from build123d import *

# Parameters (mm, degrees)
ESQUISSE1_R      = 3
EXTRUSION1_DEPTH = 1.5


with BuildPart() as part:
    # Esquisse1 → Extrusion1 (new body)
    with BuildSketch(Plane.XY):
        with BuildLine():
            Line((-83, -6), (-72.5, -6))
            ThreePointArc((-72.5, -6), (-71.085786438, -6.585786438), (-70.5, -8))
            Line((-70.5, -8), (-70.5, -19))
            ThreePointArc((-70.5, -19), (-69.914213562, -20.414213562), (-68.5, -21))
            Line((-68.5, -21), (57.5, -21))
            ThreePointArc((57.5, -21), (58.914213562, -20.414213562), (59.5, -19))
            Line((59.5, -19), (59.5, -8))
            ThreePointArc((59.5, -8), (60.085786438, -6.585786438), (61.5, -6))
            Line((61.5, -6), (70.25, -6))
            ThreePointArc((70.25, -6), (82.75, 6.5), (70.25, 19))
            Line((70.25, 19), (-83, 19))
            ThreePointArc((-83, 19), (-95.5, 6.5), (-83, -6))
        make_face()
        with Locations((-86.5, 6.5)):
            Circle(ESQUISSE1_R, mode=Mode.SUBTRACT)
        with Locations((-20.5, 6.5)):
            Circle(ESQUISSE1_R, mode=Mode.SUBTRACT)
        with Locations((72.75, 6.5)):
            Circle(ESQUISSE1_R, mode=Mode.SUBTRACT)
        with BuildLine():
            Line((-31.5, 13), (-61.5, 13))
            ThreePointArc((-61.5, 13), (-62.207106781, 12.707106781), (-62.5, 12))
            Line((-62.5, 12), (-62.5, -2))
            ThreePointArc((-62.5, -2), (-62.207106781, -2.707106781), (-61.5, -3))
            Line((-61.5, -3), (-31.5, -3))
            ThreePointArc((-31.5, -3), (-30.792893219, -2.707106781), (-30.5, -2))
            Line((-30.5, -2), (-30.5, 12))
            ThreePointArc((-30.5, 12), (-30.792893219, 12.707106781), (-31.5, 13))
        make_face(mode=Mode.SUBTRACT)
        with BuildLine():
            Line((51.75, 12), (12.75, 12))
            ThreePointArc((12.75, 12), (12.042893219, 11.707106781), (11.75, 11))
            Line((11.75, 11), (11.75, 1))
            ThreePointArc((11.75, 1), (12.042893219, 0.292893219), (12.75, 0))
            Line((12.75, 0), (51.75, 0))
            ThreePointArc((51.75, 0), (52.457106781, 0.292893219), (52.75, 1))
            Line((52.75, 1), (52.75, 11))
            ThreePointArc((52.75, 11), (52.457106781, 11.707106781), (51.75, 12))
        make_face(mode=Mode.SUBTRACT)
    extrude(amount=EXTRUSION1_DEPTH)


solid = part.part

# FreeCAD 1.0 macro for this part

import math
import FreeCAD as App
import Part
import Sketcher

V = App.Vector
Q = App.Units.Quantity

doc = App.newDocument("Part")
params = doc.addObject("Spreadsheet::Sheet", "Params")
for row, (alias, value) in enumerate([
    ("sketch1_diameter", "6 mm"),
    ("sketch1_radius", "2 mm"),
    ("sketch1_radius2", "1 mm"),
    ("sketch1_radius3", "12.5 mm"),
    ("sketch1_width", "126 mm"),
    ("pad1_length", "1.5 mm"),
], start=1):
    params.set(f"A{row}", alias)
    params.set(f"B{row}", "=" + value)
    params.setAlias(f"B{row}", alias)

body = doc.addObject("PartDesign::Body", "Body")

# Sketch on XY plane
sketch1 = body.newObject("Sketcher::SketchObject", "Sketch")
sketch1.AttachmentSupport = (doc.getObject("XY_Plane"), [""])
sketch1.MapMode = "FlatFace"
sketch1.addGeometry(Part.LineSegment(V(-83, -6, 0), V(-72.5, -6, 0)), False)
sketch1.addGeometry(Part.ArcOfCircle(Part.Circle(V(-72.5, -8, 0), V(0, 0, 1), 2), math.radians(0), math.radians(90)), False)
sketch1.addGeometry(Part.LineSegment(V(-70.5, -8, 0), V(-70.5, -19, 0)), False)
sketch1.addGeometry(Part.ArcOfCircle(Part.Circle(V(-68.5, -19, 0), V(0, 0, 1), 2), math.radians(-180), math.radians(-90)), False)
sketch1.addGeometry(Part.LineSegment(V(-68.5, -21, 0), V(57.5, -21, 0)), False)
sketch1.addGeometry(Part.ArcOfCircle(Part.Circle(V(57.5, -19, 0), V(0, 0, 1), 2), math.radians(-90), math.radians(0)), False)
sketch1.addGeometry(Part.LineSegment(V(59.5, -19, 0), V(59.5, -8, 0)), False)
sketch1.addGeometry(Part.ArcOfCircle(Part.Circle(V(61.5, -8, 0), V(0, 0, 1), 2), math.radians(90), math.radians(180)), False)
sketch1.addGeometry(Part.LineSegment(V(61.5, -6, 0), V(70.2, -6, 0)), False)
sketch1.addGeometry(Part.ArcOfCircle(Part.Circle(V(70.2, 6.5, 0), V(0, 0, 1), 12.5), math.radians(-90), math.radians(90)), False)
sketch1.addGeometry(Part.LineSegment(V(70.2, 19, 0), V(-83, 19, 0)), False)
sketch1.addGeometry(Part.ArcOfCircle(Part.Circle(V(-83, 6.5, 0), V(0, 0, 1), 12.5), math.radians(90), math.radians(270)), False)
sketch1.addGeometry(Part.Circle(V(-86.5, 6.5, 0), V(0, 0, 1), 3), False)
sketch1.addGeometry(Part.LineSegment(V(-61.5, 13, 0), V(-31.5, 13, 0)), False)
sketch1.addGeometry(Part.ArcOfCircle(Part.Circle(V(-31.5, 12, 0), V(0, 0, 1), 1), math.radians(0), math.radians(90)), False)
sketch1.addGeometry(Part.LineSegment(V(-30.5, 12, 0), V(-30.5, -2, 0)), False)
sketch1.addGeometry(Part.ArcOfCircle(Part.Circle(V(-31.5, -2, 0), V(0, 0, 1), 1), math.radians(-90), math.radians(0)), False)
sketch1.addGeometry(Part.LineSegment(V(-31.5, -3, 0), V(-61.5, -3, 0)), False)
sketch1.addGeometry(Part.ArcOfCircle(Part.Circle(V(-61.5, -2, 0), V(0, 0, 1), 1), math.radians(-180), math.radians(-90)), False)
sketch1.addGeometry(Part.LineSegment(V(-62.5, -2, 0), V(-62.5, 12, 0)), False)
sketch1.addGeometry(Part.ArcOfCircle(Part.Circle(V(-61.5, 12, 0), V(0, 0, 1), 1), math.radians(90), math.radians(180)), False)
sketch1.addGeometry(Part.Circle(V(-20.5, 6.5, 0), V(0, 0, 1), 3), False)
sketch1.addGeometry(Part.LineSegment(V(12.8, 12, 0), V(51.8, 12, 0)), False)
sketch1.addGeometry(Part.ArcOfCircle(Part.Circle(V(51.7, 11, 0), V(0, 0, 1), 1), math.radians(0), math.radians(90)), False)
sketch1.addGeometry(Part.LineSegment(V(52.8, 11, 0), V(52.8, 1, 0)), False)
sketch1.addGeometry(Part.ArcOfCircle(Part.Circle(V(51.7, 1, 0), V(0, 0, 1), 1), math.radians(-90), math.radians(0)), False)
sketch1.addGeometry(Part.LineSegment(V(51.8, 0, 0), V(12.8, 0, 0)), False)
sketch1.addGeometry(Part.ArcOfCircle(Part.Circle(V(12.8, 1, 0), V(0, 0, 1), 1), math.radians(-180), math.radians(-90)), False)
sketch1.addGeometry(Part.LineSegment(V(11.8, 1, 0), V(11.8, 11, 0)), False)
sketch1.addGeometry(Part.ArcOfCircle(Part.Circle(V(12.8, 11, 0), V(0, 0, 1), 1), math.radians(90), math.radians(180)), False)
sketch1.addGeometry(Part.Circle(V(72.8, 6.5, 0), V(0, 0, 1), 3), False)
sketch1.addConstraint(Sketcher.Constraint("Tangent", 0, 2, 1, 2))
sketch1.addConstraint(Sketcher.Constraint("Tangent", 1, 1, 2, 1))
sketch1.addConstraint(Sketcher.Constraint("Tangent", 2, 2, 3, 1))
sketch1.addConstraint(Sketcher.Constraint("Tangent", 3, 2, 4, 1))
sketch1.addConstraint(Sketcher.Constraint("Tangent", 4, 2, 5, 1))
sketch1.addConstraint(Sketcher.Constraint("Tangent", 5, 2, 6, 1))
sketch1.addConstraint(Sketcher.Constraint("Tangent", 6, 2, 7, 2))
sketch1.addConstraint(Sketcher.Constraint("Tangent", 7, 1, 8, 1))
sketch1.addConstraint(Sketcher.Constraint("Tangent", 8, 2, 9, 1))
sketch1.addConstraint(Sketcher.Constraint("Tangent", 9, 2, 10, 1))
sketch1.addConstraint(Sketcher.Constraint("Tangent", 10, 2, 11, 1))
sketch1.addConstraint(Sketcher.Constraint("Tangent", 11, 2, 0, 1))
sketch1.addConstraint(Sketcher.Constraint("Tangent", 13, 2, 14, 2))
sketch1.addConstraint(Sketcher.Constraint("Tangent", 14, 1, 15, 1))
sketch1.addConstraint(Sketcher.Constraint("Tangent", 15, 2, 16, 2))
sketch1.addConstraint(Sketcher.Constraint("Tangent", 16, 1, 17, 1))
sketch1.addConstraint(Sketcher.Constraint("Tangent", 17, 2, 18, 2))
sketch1.addConstraint(Sketcher.Constraint("Tangent", 18, 1, 19, 1))
sketch1.addConstraint(Sketcher.Constraint("Tangent", 19, 2, 20, 2))
sketch1.addConstraint(Sketcher.Constraint("Tangent", 20, 1, 13, 1))
sketch1.addConstraint(Sketcher.Constraint("Tangent", 22, 2, 23, 2))
sketch1.addConstraint(Sketcher.Constraint("Tangent", 23, 1, 24, 1))
sketch1.addConstraint(Sketcher.Constraint("Tangent", 24, 2, 25, 2))
sketch1.addConstraint(Sketcher.Constraint("Tangent", 25, 1, 26, 1))
sketch1.addConstraint(Sketcher.Constraint("Tangent", 26, 2, 27, 2))
sketch1.addConstraint(Sketcher.Constraint("Tangent", 27, 1, 28, 1))
sketch1.addConstraint(Sketcher.Constraint("Tangent", 28, 2, 29, 2))
sketch1.addConstraint(Sketcher.Constraint("Tangent", 29, 1, 22, 1))
sketch1.addConstraint(Sketcher.Constraint("Horizontal", 0))
sketch1.addConstraint(Sketcher.Constraint("Vertical", 2))
sketch1.addConstraint(Sketcher.Constraint("Horizontal", 4))
sketch1.addConstraint(Sketcher.Constraint("Vertical", 6))
sketch1.addConstraint(Sketcher.Constraint("Horizontal", 8))
sketch1.addConstraint(Sketcher.Constraint("Horizontal", 10))
sketch1.addConstraint(Sketcher.Constraint("Horizontal", 13))
sketch1.addConstraint(Sketcher.Constraint("Vertical", 15))
sketch1.addConstraint(Sketcher.Constraint("Horizontal", 17))
sketch1.addConstraint(Sketcher.Constraint("Vertical", 19))
sketch1.addConstraint(Sketcher.Constraint("Horizontal", 22))
sketch1.addConstraint(Sketcher.Constraint("Vertical", 24))
sketch1.addConstraint(Sketcher.Constraint("Horizontal", 26))
sketch1.addConstraint(Sketcher.Constraint("Vertical", 28))
sketch1.addConstraint(Sketcher.Constraint("Equal", 1, 3))
sketch1.addConstraint(Sketcher.Constraint("Equal", 3, 5))
sketch1.addConstraint(Sketcher.Constraint("Equal", 5, 7))
sketch1.addConstraint(Sketcher.Constraint("Equal", 9, 11))
sketch1.addConstraint(Sketcher.Constraint("Equal", 14, 16))
sketch1.addConstraint(Sketcher.Constraint("Equal", 16, 18))
sketch1.addConstraint(Sketcher.Constraint("Equal", 18, 20))
sketch1.addConstraint(Sketcher.Constraint("Equal", 12, 21))
sketch1.addConstraint(Sketcher.Constraint("Equal", 20, 23))
sketch1.addConstraint(Sketcher.Constraint("Equal", 23, 25))
sketch1.addConstraint(Sketcher.Constraint("Equal", 25, 27))
sketch1.addConstraint(Sketcher.Constraint("Equal", 27, 29))
sketch1.addConstraint(Sketcher.Constraint("Equal", 21, 30))
sketch1.addConstraint(Sketcher.Constraint("PointOnObject", 25, 1, -1))
sketch1.addConstraint(Sketcher.Constraint("Horizontal", 11, 3, 12, 3))
sketch1.addConstraint(Sketcher.Constraint("Horizontal", 12, 3, 21, 3))
sketch1.addConstraint(Sketcher.Constraint("Horizontal", 21, 3, 30, 3))
sketch1.addConstraint(Sketcher.Constraint("Horizontal", 19, 2, 22, 2))
sketch1.addConstraint(Sketcher.Constraint("Diameter", 12, Q("6 mm")))
sketch1.addConstraint(Sketcher.Constraint("Radius", 1, Q("2 mm")))
sketch1.addConstraint(Sketcher.Constraint("Radius", 14, Q("1 mm")))
sketch1.addConstraint(Sketcher.Constraint("Radius", 9, Q("12.5 mm")))
sketch1.addConstraint(Sketcher.Constraint("DistanceX", 4, 1, 4, 2, Q("126 mm")))
sketch1.addConstraint(Sketcher.Constraint("DistanceX", 13, 1, 13, 2, Q("30 mm")))
sketch1.addConstraint(Sketcher.Constraint("DistanceX", 22, 1, 22, 2, Q("39 mm")))
sketch1.addConstraint(Sketcher.Constraint("DistanceY", 2, 2, 2, 1, Q("11 mm")))
sketch1.addConstraint(Sketcher.Constraint("DistanceY", 15, 2, 15, 1, Q("14 mm")))
sketch1.addConstraint(Sketcher.Constraint("DistanceY", 24, 2, 24, 1, Q("10 mm")))
sketch1.addConstraint(Sketcher.Constraint("DistanceX", 0, 1, 0, 2, Q("10.5 mm")))
sketch1.addConstraint(Sketcher.Constraint("DistanceY", 1, 3, -1, 1, Q("8 mm")))
sketch1.addConstraint(Sketcher.Constraint("DistanceX", 11, 3, -1, 1, Q("83 mm")))
sketch1.addConstraint(Sketcher.Constraint("DistanceX", 12, 3, 1, 3, Q("14 mm")))
sketch1.addConstraint(Sketcher.Constraint("DistanceX", 1, 3, 14, 3, Q("41 mm")))
sketch1.addConstraint(Sketcher.Constraint("DistanceX", 14, 3, 21, 3, Q("11 mm")))
sketch1.addConstraint(Sketcher.Constraint("DistanceX", 23, 3, 30, 3, Q("21 mm")))
sketch1.addConstraint(Sketcher.Constraint("DistanceX", 8, 1, 8, 2, Q("8.75 mm")))
sketch1.addConstraint(Sketcher.Constraint("DistanceX", 23, 3, 9, 3, Q("18.5 mm")))
sketch1.setExpression("Constraints[60]", "Params.sketch1_diameter")
sketch1.setExpression("Constraints[61]", "Params.sketch1_radius")
sketch1.setExpression("Constraints[62]", "Params.sketch1_radius2")
sketch1.setExpression("Constraints[63]", "Params.sketch1_radius3")
sketch1.setExpression("Constraints[64]", "Params.sketch1_width")
pad1 = body.newObject("PartDesign::Pad", "Pad")
pad1.Profile = sketch1
pad1.setExpression("Length", "Params.pad1_length")

doc.recompute()
